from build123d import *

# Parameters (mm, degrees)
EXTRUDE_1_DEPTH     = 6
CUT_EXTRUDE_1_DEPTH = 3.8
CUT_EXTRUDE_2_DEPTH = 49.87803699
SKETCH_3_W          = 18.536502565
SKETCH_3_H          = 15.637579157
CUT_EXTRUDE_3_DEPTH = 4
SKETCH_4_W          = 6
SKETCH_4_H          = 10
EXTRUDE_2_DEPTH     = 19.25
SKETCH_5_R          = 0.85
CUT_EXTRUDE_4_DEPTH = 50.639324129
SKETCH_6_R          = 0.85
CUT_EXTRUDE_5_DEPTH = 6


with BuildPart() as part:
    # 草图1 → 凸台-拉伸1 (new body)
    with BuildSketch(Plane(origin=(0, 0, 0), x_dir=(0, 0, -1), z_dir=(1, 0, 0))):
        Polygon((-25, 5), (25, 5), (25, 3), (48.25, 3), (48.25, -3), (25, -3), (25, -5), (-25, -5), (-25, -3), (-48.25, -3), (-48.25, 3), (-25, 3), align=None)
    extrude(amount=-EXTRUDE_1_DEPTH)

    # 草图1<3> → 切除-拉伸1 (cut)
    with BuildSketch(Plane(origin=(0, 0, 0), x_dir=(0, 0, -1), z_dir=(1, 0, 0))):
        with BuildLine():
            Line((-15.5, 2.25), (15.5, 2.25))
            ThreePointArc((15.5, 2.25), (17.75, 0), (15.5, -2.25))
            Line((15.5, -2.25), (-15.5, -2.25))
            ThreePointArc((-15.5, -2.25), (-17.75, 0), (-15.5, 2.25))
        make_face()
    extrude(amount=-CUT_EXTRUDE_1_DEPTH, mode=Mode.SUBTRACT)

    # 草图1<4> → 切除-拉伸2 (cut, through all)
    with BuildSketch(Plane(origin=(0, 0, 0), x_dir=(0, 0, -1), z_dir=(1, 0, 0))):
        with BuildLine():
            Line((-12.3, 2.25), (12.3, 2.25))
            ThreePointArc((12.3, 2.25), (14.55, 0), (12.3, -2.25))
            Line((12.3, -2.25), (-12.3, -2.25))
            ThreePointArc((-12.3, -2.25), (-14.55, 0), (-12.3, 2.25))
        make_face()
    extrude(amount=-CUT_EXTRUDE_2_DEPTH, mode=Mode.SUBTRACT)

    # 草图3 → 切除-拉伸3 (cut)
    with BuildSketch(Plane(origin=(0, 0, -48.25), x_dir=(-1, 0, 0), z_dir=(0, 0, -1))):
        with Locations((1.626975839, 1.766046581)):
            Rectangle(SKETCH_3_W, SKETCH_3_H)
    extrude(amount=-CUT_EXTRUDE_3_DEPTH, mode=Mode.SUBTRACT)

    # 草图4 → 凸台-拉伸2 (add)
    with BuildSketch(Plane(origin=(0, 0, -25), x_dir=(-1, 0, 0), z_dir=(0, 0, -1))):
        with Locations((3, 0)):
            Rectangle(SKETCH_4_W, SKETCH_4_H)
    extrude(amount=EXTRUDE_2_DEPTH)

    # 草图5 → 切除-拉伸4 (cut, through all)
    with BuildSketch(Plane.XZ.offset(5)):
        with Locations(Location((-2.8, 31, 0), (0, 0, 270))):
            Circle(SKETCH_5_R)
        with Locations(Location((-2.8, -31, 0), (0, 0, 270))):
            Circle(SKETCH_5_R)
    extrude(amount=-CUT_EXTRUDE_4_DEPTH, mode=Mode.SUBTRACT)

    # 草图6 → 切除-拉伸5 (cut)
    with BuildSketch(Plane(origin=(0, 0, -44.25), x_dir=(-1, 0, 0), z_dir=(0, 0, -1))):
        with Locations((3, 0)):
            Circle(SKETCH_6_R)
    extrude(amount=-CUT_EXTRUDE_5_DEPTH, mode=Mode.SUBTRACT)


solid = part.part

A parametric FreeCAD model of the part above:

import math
import FreeCAD as App
import Part
import Sketcher
from FreeCAD import Vector


def add_polygon(sketch, points):
    """Adds a closed chain of lines whose ends are joined by coincident constraints."""
    first, n = sketch.GeometryCount, len(points)
    for a, b in zip(points, points[1:] + points[:1]):
        sketch.addGeometry(Part.LineSegment(App.Vector(*a, 0), App.Vector(*b, 0)), False)
    for i in range(n):
        sketch.addConstraint(Sketcher.Constraint("Coincident", first + i, 2, first + (i + 1) % n, 1))

doc = App.newDocument("Part")
params = doc.addObject("Spreadsheet::Sheet", "Params")
for row, (alias, value) in enumerate([
    ("sketch1_width", "2 mm"),
    ("sketch1_width2", "6 mm"),
    ("sketch1_height", "50 mm"),
    ("sketch1_height2", "23.25 mm"),
    ("pad1_length", "6 mm"),
    ("sketch2_height", "31 mm"),
    ("sketch2_radius", "2.25 mm"),
    ("pocket1_length", "3.8 mm"),
    ("sketch3_radius", "2.25 mm"),
    ("sketch3_height", "24.6 mm"),
    ("pocket3_length", "4 mm"),
    ("sketch5_width", "6 mm"),
    ("sketch5_height", "10 mm"),
    ("pad2_length", "19.25 mm"),
    ("sketch6_diameter", "1.7 mm"),
    ("sketch7_diameter", "1.7 mm"),
    ("pocket5_length", "6 mm"),
], start=1):
    params.set(f"A{row}", alias)
    params.set(f"B{row}", "=" + value)
    params.setAlias(f"B{row}", alias)

body = doc.addObject("PartDesign::Body", "Body")

# Sketch on YZ plane
sketch1 = body.newObject("Sketcher::SketchObject", "Sketch")
sketch1.AttachmentSupport = (doc.getObject("YZ_Plane"), [""])
sketch1.MapMode = "FlatFace"
add_polygon(sketch1, [(5, -25), (5, 25), (3, 25), (3, 48.2), (-3, 48.2), (-3, 25), (-5, 25), (-5, -25), (-3, -25), (-3, -48.2), (3, -48.2), (3, -25)])  # lines 0-11
sketch1.addConstraint([
    Sketcher.Constraint("Vertical", 0),
    Sketcher.Constraint("Horizontal", 1),
    Sketcher.Constraint("Vertical", 2),
    Sketcher.Constraint("Horizontal", 3),
    Sketcher.Constraint("Vertical", 4),
    Sketcher.Constraint("Horizontal", 5),
    Sketcher.Constraint("Vertical", 6),
    Sketcher.Constraint("Horizontal", 7),
    Sketcher.Constraint("Vertical", 8),
    Sketcher.Constraint("Horizontal", 9),
    Sketcher.Constraint("Vertical", 10),
    Sketcher.Constraint("Horizontal", 11),
    Sketcher.Constraint("Symmetric", 0, 2, 6, 2, -1, 1),
    Sketcher.Constraint("Symmetric", 2, 2, 8, 2, -1, 1),
    Sketcher.Constraint("Symmetric", 4, 2, 10, 2, -1, 1),
    Sketcher.Constraint("Symmetric", 1, 2, 4, 2, -2),
    Sketcher.Constraint("DistanceX", 1, 2, 1, 1, 2.0),
    Sketcher.Constraint("DistanceX", 3, 2, 3, 1, 6.0),
    Sketcher.Constraint("DistanceY", 0, 1, 0, 2, 50.0),
    Sketcher.Constraint("DistanceY", 2, 1, 2, 2, 23.25),
])
sketch1.setExpression("Constraints[28]", "Params.sketch1_width")
sketch1.setExpression("Constraints[29]", "Params.sketch1_width2")
sketch1.setExpression("Constraints[30]", "Params.sketch1_height")
sketch1.setExpression("Constraints[31]", "Params.sketch1_height2")
pad1 = body.newObject("PartDesign::Pad", "Pad")
pad1.Profile = sketch1
pad1.setExpression("Length", "Params.pad1_length")
pad1.Reversed = True

# Sketch on YZ plane
sketch2 = body.newObject("Sketcher::SketchObject", "Sketch001")
sketch2.AttachmentSupport = (doc.getObject("YZ_Plane"), [""])
sketch2.MapMode = "FlatFace"
sketch2.addGeometry([
    Part.LineSegment(Vector(2.2, -15.5, 0), Vector(2.2, 15.5, 0)),
    Part.ArcOfCircle(Part.Circle(Vector(0, 15.5, 0), Vector(0, 0, 1), 2.2), math.radians(0), math.radians(180)),
    Part.LineSegment(Vector(-2.2, 15.5, 0), Vector(-2.2, -15.5, 0)),
    Part.ArcOfCircle(Part.Circle(Vector(0, -15.5, 0), Vector(0, 0, 1), 2.2), math.radians(180), math.radians(360)),
], False)
sketch2.addConstraint([
    Sketcher.Constraint("Tangent", 0, 2, 1, 1),
    Sketcher.Constraint("Tangent", 1, 2, 2, 1),
    Sketcher.Constraint("Tangent", 2, 2, 3, 1),
    Sketcher.Constraint("Tangent", 3, 2, 0, 1),
    Sketcher.Constraint("Vertical", 0),
    Sketcher.Constraint("Vertical", 2),
    Sketcher.Constraint("Symmetric", 1, 3, 3, 3, -1, 1),
    Sketcher.Constraint("DistanceY", 0, 1, 0, 2, 31.0),
    Sketcher.Constraint("Radius", 1, 2.25),
])
sketch2.setExpression("Constraints[7]", "Params.sketch2_height")
sketch2.setExpression("Constraints[8]", "Params.sketch2_radius")
pocket1 = body.newObject("PartDesign::Pocket", "Pocket")
pocket1.Profile = sketch2
pocket1.setExpression("Length", "Params.pocket1_length")

# Sketch on YZ plane
sketch3 = body.newObject("Sketcher::SketchObject", "Sketch002")
sketch3.AttachmentSupport = (doc.getObject("YZ_Plane"), [""])
sketch3.MapMode = "FlatFace"
sketch3.addGeometry([
    Part.LineSegment(Vector(2.2, -12.3, 0), Vector(2.2, 12.3, 0)),
    Part.ArcOfCircle(Part.Circle(Vector(0, 12.3, 0), Vector(0, 0, 1), 2.2), math.radians(0), math.radians(180)),
    Part.LineSegment(Vector(-2.2, 12.3, 0), Vector(-2.2, -12.3, 0)),
    Part.ArcOfCircle(Part.Circle(Vector(0, -12.3, 0), Vector(0, 0, 1), 2.2), math.radians(180), math.radians(360)),
], False)
sketch3.addConstraint([
    Sketcher.Constraint("Tangent", 0, 2, 1, 1),
    Sketcher.Constraint("Tangent", 1, 2, 2, 1),
    Sketcher.Constraint("Tangent", 2, 2, 3, 1),
    Sketcher.Constraint("Tangent", 3, 2, 0, 1),
    Sketcher.Constraint("Vertical", 0),
    Sketcher.Constraint("Vertical", 2),
    Sketcher.Constraint("Symmetric", 1, 3, 3, 3, -1, 1),
    Sketcher.Constraint("Radius", 1, 2.25),
    Sketcher.Constraint("DistanceY", 0, 1, 0, 2, 24.6),
])
sketch3.setExpression("Constraints[7]", "Params.sketch3_radius")
sketch3.setExpression("Constraints[8]", "Params.sketch3_height")
pocket2 = body.newObject("PartDesign::Pocket", "Pocket001")
pocket2.Profile = sketch3
pocket2.Type = "ThroughAll"

# Sketch on XY plane
sketch4 = body.newObject("Sketcher::SketchObject", "Sketch003")
sketch4.AttachmentSupport = (doc.getObject("XY_Plane"), [""])
sketch4.MapMode = "FlatFace"
sketch4.AttachmentOffset = App.Placement(Vector(0, 0, -48.25), App.Rotation())
add_polygon(sketch4, [(8, 10), (8, -6), (-11, -6), (-11, 10)])  # lines 0-3
sketch4.addConstraint([
    Sketcher.Constraint("Vertical", 0),
    Sketcher.Constraint("Horizontal", 1),
    Sketcher.Constraint("Vertical", 2),
    Sketcher.Constraint("Horizontal", 3),
    Sketcher.Constraint("DistanceY", 0, 2, 0, 1, 15.637579),
    Sketcher.Constraint("DistanceX", 1, 2, 1, 1, 18.536503),
    Sketcher.Constraint("DistanceX", -1, 1, 0, 2, 7.641275),
    Sketcher.Constraint("DistanceY", 0, 2, -1, 1, 6.052743),
])
pocket3 = body.newObject("PartDesign::Pocket", "Pocket002")
pocket3.Profile = sketch4
pocket3.setExpression("Length", "Params.pocket3_length")
pocket3.Reversed = True

# Sketch on XY plane
sketch5 = body.newObject("Sketcher::SketchObject", "Sketch004")
sketch5.AttachmentSupport = (doc.getObject("XY_Plane"), [""])
sketch5.MapMode = "FlatFace"
sketch5.AttachmentOffset = App.Placement(Vector(0, 0, -25), App.Rotation())
add_polygon(sketch5, [(0, 5), (0, -5), (-6, -5), (-6, 5)])  # lines 0-3
sketch5.addConstraint([
    Sketcher.Constraint("Vertical", 0),
    Sketcher.Constraint("Horizontal", 1),
    Sketcher.Constraint("Vertical", 2),
    Sketcher.Constraint("Horizontal", 3),
    Sketcher.Constraint("Symmetric", 0, 2, 3, 2, -1, 1),
    Sketcher.Constraint("DistanceX", 1, 2, 1, 1, 6.0),
    Sketcher.Constraint("DistanceY", 0, 2, 0, 1, 10.0),
])
sketch5.setExpression("Constraints[9]", "Params.sketch5_width")
sketch5.setExpression("Constraints[10]", "Params.sketch5_height")
pad2 = body.newObject("PartDesign::Pad", "Pad001")
pad2.Profile = sketch5
pad2.setExpression("Length", "Params.pad2_length")
pad2.Reversed = True

# Sketch on XZ plane
sketch6 = body.newObject("Sketcher::SketchObject", "Sketch005")
sketch6.AttachmentSupport = (doc.getObject("XZ_Plane"), [""])
sketch6.MapMode = "FlatFace"
sketch6.AttachmentOffset = App.Placement(Vector(0, 0, 5), App.Rotation())
sketch6.addGeometry([
    Part.Circle(Vector(-2.8, 31, 0), Vector(0, 0, 1), 0.8),
    Part.Circle(Vector(-2.8, -31, 0), Vector(0, 0, 1), 0.8),
], False)
sketch6.addConstraint([
    Sketcher.Constraint("Equal", 0, 1),
    Sketcher.Constraint("Symmetric", 0, 3, 1, 3, -1),
    Sketcher.Constraint("Diameter", 0, 1.7),
    Sketcher.Constraint("DistanceY", -1, 1, 0, 3, 31.0),
    Sketcher.Constraint("DistanceX", 0, 3, -1, 1, 2.8),
])
sketch6.setExpression("Constraints[2]", "Params.sketch6_diameter")
pocket4 = body.newObject("PartDesign::Pocket", "Pocket003")
pocket4.Profile = sketch6
pocket4.Type = "ThroughAll"

# Sketch on XY plane
sketch7 = body.newObject("Sketcher::SketchObject", "Sketch006")
sketch7.AttachmentSupport = (doc.getObject("XY_Plane"), [""])
sketch7.MapMode = "FlatFace"
sketch7.AttachmentOffset = App.Placement(Vector(0, 0, -44.25), App.Rotation())
sketch7.addGeometry(Part.Circle(Vector(-3, 0, 0), Vector(0, 0, 1), 0.8), False)
sketch7.addConstraint([
    Sketcher.Constraint("PointOnObject", 0, 3, -1),
    Sketcher.Constraint("Diameter", 0, 1.7),
    Sketcher.Constraint("DistanceX", 0, 3, -1, 1, 3.0),
])
sketch7.setExpression("Constraints[1]", "Params.sketch7_diameter")
pocket5 = body.newObject("PartDesign::Pocket", "Pocket004")
pocket5.Profile = sketch7
pocket5.setExpression("Length", "Params.pocket5_length")
pocket5.Reversed = True

doc.recompute()
